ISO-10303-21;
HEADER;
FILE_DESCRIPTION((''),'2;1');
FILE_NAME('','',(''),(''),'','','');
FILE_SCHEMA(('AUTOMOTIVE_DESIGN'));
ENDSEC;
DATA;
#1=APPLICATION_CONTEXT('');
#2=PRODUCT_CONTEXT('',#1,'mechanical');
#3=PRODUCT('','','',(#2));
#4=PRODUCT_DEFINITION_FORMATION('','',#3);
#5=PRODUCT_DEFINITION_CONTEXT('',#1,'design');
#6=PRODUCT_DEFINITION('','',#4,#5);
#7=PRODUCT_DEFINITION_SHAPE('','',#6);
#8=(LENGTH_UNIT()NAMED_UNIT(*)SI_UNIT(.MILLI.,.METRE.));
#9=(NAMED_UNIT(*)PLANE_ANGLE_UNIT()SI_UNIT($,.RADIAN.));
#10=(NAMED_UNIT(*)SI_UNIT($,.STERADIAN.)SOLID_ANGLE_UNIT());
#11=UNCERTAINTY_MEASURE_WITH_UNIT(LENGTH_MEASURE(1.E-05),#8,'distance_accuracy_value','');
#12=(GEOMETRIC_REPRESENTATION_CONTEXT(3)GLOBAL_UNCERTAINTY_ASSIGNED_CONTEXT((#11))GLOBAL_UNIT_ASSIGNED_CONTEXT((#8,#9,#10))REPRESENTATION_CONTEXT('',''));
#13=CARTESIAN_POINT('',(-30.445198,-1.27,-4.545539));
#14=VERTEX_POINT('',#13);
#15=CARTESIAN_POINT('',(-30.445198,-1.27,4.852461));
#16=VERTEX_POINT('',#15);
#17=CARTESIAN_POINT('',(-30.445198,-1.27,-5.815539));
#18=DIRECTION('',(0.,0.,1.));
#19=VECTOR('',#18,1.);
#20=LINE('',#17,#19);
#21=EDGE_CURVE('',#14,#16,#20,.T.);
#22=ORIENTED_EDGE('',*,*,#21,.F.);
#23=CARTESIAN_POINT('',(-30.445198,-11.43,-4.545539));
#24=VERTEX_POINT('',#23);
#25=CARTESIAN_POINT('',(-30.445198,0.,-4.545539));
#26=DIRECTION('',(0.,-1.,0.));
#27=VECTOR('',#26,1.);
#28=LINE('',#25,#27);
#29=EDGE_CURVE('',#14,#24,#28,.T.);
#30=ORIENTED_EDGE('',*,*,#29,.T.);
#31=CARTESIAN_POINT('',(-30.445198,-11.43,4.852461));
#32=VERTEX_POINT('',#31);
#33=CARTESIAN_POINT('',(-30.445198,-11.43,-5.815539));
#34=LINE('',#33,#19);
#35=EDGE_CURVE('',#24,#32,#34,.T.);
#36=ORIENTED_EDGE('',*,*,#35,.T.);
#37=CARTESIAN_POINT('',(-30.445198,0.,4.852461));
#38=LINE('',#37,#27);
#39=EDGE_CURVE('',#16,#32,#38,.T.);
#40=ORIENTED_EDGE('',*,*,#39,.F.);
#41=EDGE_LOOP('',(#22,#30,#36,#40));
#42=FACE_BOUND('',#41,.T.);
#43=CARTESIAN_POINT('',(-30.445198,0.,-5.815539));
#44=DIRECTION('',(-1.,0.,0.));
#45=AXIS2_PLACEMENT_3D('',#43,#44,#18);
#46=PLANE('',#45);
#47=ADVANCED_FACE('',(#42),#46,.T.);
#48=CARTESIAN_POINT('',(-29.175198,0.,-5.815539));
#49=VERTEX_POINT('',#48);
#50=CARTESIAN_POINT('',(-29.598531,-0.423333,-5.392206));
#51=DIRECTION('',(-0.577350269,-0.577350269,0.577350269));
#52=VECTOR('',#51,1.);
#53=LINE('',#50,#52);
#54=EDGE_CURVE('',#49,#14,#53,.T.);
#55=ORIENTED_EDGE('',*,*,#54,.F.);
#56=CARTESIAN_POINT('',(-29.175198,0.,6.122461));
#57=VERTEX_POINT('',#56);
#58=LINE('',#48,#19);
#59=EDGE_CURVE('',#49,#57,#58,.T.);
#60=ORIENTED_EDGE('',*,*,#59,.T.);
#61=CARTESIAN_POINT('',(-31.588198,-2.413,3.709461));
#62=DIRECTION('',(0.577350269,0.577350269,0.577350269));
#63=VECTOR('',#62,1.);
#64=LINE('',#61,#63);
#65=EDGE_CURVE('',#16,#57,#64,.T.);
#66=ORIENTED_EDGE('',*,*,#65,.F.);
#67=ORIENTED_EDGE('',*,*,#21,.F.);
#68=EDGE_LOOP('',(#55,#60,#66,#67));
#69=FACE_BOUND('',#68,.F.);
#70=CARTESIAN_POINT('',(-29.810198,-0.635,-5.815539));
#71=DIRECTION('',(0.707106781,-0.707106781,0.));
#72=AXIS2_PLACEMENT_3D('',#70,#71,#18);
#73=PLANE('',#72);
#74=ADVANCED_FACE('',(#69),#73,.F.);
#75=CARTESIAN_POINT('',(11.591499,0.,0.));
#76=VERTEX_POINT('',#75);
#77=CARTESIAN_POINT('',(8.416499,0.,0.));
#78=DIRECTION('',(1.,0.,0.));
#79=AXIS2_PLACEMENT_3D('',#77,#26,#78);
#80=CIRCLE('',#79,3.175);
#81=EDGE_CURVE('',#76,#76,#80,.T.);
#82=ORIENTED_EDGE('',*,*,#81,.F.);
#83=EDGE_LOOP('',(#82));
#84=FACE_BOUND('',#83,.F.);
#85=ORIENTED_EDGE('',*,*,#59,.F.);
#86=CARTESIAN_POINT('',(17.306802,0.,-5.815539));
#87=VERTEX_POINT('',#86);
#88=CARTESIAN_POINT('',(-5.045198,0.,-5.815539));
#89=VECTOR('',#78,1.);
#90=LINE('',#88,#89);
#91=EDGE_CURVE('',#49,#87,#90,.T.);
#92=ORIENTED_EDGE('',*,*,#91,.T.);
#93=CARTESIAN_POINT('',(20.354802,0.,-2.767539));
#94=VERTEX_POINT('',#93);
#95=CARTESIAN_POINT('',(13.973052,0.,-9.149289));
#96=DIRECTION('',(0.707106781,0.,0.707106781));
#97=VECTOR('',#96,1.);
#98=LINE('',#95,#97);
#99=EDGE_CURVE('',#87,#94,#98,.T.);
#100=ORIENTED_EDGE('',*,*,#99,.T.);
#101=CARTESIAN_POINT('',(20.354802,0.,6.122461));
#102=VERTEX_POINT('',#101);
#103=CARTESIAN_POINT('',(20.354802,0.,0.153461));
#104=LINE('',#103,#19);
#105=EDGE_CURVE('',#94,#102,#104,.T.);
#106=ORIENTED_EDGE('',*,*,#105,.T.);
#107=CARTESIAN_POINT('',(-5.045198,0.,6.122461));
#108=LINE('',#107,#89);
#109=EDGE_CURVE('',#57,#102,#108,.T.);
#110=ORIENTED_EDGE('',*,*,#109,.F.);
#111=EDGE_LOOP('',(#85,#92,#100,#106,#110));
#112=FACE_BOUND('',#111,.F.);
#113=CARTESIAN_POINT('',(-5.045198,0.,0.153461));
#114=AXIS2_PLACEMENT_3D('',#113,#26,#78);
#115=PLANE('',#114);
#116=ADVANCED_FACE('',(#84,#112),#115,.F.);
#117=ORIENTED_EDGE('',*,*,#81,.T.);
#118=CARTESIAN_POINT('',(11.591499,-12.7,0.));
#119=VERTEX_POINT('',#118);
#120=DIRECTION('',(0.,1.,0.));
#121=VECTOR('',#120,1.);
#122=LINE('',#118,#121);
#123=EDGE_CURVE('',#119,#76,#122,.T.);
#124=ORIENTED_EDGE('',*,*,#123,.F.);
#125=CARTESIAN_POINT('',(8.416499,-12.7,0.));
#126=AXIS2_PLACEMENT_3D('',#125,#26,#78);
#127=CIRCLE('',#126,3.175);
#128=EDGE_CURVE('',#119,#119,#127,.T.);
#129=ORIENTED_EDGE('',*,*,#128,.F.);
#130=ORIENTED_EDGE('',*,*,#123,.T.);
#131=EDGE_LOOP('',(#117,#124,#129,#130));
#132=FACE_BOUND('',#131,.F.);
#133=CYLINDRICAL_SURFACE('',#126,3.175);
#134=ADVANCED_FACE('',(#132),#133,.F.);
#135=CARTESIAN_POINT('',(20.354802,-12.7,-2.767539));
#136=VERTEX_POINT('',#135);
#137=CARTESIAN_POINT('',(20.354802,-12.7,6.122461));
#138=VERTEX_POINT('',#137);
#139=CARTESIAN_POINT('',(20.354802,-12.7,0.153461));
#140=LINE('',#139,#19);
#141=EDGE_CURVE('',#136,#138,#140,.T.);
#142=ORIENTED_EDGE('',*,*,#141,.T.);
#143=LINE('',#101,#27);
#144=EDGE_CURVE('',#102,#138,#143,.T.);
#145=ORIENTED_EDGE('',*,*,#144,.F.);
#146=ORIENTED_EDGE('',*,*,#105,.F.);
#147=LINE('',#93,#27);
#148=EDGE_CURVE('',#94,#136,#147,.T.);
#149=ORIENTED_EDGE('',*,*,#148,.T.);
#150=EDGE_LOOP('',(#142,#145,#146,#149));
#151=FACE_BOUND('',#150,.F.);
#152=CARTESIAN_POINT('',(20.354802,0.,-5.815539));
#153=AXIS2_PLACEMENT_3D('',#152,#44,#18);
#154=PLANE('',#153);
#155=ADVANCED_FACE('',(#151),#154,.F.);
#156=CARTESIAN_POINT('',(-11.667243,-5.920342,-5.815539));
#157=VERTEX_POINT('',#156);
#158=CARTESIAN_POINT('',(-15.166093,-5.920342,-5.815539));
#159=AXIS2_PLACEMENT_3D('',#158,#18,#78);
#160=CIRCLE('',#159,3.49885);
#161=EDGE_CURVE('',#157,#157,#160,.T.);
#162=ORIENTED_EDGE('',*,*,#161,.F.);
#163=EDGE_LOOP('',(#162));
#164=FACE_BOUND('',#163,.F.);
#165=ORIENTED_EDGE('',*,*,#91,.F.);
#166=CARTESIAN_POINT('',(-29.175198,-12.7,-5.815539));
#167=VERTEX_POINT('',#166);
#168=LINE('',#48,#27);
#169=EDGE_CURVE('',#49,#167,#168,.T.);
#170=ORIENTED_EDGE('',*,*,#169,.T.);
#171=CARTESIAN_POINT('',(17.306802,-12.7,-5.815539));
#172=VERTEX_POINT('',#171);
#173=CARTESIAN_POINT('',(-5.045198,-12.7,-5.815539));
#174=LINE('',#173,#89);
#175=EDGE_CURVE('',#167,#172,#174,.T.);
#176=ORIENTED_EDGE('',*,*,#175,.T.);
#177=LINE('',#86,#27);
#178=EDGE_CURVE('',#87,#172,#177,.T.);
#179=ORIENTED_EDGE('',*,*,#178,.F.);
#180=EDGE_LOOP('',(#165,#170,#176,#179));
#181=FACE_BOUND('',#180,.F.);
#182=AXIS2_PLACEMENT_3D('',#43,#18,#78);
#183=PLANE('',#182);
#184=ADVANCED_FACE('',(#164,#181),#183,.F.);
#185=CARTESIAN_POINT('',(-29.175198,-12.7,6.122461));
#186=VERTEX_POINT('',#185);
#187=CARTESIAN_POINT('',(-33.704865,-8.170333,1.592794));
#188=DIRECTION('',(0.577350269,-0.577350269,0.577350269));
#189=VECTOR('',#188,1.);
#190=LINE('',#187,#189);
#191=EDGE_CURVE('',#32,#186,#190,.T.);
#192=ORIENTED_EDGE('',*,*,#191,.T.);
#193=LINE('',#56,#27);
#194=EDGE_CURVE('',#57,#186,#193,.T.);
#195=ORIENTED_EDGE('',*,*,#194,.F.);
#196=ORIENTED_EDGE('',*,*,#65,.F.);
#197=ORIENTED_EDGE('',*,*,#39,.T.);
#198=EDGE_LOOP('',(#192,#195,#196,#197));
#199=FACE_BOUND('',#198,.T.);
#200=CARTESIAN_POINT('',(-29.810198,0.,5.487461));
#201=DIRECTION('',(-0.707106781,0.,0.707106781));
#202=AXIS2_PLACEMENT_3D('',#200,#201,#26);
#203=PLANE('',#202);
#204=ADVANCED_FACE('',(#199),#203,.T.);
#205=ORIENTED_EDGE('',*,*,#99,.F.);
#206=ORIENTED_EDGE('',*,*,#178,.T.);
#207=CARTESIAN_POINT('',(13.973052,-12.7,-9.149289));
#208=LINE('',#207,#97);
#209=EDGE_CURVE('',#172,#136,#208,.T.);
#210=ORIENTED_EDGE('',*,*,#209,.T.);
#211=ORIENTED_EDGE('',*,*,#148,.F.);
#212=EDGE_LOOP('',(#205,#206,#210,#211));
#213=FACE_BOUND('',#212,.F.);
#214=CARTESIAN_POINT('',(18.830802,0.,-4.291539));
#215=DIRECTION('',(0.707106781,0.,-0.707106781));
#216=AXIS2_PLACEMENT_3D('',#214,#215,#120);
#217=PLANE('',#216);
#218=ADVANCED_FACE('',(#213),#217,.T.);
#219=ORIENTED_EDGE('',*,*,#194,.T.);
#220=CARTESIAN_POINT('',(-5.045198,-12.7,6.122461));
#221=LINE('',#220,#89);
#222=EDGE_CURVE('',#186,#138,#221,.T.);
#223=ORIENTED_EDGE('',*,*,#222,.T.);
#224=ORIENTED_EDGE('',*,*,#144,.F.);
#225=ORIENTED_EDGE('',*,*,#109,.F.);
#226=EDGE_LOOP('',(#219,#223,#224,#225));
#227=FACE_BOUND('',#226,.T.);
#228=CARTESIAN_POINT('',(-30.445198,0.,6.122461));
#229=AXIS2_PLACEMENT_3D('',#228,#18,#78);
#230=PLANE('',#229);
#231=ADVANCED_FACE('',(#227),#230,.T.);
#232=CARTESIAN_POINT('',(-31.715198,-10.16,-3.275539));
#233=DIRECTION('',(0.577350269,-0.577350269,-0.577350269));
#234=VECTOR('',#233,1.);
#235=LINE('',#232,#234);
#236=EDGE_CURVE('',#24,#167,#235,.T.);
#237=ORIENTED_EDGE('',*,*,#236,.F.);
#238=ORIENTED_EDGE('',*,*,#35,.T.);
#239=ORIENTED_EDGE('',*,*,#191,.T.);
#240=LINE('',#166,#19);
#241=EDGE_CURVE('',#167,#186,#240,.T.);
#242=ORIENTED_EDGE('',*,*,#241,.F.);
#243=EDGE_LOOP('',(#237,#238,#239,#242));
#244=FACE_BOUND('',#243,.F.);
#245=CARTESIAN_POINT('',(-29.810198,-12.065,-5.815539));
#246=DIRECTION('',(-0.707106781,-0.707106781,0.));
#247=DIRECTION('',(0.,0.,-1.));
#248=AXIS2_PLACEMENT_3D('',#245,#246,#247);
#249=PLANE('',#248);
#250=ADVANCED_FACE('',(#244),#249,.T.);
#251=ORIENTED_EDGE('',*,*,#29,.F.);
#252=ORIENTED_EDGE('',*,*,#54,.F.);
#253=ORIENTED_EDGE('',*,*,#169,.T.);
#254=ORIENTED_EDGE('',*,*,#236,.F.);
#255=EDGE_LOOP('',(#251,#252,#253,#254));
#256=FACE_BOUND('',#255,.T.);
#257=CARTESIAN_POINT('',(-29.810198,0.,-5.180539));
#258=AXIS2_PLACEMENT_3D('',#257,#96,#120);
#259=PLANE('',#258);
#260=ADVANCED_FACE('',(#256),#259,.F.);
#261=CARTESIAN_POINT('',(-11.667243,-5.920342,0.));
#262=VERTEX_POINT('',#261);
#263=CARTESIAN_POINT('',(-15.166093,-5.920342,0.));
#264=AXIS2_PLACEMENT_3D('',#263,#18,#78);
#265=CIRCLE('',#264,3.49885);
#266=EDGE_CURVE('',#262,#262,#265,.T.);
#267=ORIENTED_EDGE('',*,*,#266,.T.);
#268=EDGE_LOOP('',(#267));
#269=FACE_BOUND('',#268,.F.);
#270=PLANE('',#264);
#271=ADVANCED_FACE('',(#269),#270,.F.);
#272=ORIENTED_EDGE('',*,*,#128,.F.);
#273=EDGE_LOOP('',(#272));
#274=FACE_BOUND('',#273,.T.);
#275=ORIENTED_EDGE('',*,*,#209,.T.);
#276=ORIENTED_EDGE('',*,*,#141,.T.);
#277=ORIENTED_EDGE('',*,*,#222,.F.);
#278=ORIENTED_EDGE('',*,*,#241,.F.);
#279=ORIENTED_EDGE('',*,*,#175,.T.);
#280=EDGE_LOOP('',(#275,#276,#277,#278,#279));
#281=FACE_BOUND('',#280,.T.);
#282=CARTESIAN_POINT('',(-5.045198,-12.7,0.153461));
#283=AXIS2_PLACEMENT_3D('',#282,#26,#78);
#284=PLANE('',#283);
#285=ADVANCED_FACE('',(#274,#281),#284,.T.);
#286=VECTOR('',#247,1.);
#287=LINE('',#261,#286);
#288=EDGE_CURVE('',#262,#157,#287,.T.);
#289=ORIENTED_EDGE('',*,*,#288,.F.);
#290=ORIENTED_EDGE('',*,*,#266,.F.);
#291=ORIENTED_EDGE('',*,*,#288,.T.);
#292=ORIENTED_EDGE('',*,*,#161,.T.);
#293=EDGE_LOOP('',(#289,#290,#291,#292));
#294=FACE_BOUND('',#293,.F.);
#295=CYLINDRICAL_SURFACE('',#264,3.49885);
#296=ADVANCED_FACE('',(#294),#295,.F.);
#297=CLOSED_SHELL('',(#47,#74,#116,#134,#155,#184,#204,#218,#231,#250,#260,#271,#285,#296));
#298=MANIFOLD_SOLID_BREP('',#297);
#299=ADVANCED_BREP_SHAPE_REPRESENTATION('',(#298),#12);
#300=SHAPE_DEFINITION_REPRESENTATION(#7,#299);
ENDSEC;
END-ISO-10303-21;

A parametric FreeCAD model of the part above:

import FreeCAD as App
import Part
import Sketcher
Q = App.Units.Quantity


def edges_at(feature, points):
    """Names of the edges that pass closest to the given points."""
    edges = feature.Shape.Edges
    near = lambda p: min(range(len(edges)), key=lambda i: edges[i].distToShape(Part.Vertex(*p))[0])
    return sorted({f"Edge{near(p) + 1}" for p in points})

doc = App.newDocument("Part")
body = doc.addObject("PartDesign::Body", "Body")

# Sketch on XZ plane
sketch1 = body.newObject("Sketcher::SketchObject", "Sketch")
sketch1.AttachmentSupport = (doc.getObject("XZ_Plane"), [""])
sketch1.MapMode = "FlatFace"
sketch1.addGeometry([
    Part.LineSegment(App.Vector(-30, 6, 0), App.Vector(-30, -6, 0)),
    Part.LineSegment(App.Vector(-30, -6, 0), App.Vector(20, -6, 0)),
    Part.LineSegment(App.Vector(20, -6, 0), App.Vector(20, 6, 0)),
    Part.LineSegment(App.Vector(20, 6, 0), App.Vector(-30, 6, 0)),
], False)
sketch1.addConstraint([
    Sketcher.Constraint("Coincident", 0, 2, 1, 1),
    Sketcher.Constraint("Coincident", 1, 2, 2, 1),
    Sketcher.Constraint("Coincident", 2, 2, 3, 1),
    Sketcher.Constraint("Coincident", 3, 2, 0, 1),
    Sketcher.Constraint("Vertical", 0),
    Sketcher.Constraint("Horizontal", 1),
    Sketcher.Constraint("Vertical", 2),
    Sketcher.Constraint("Horizontal", 3),
    Sketcher.Constraint("DistanceX", 1, 1, 1, 2, Q("2 in")),
    Sketcher.Constraint("DistanceY", 0, 2, 0, 1, Q("0.47 in")),
    Sketcher.Constraint("DistanceX", 0, 2, -1, 1, 30.445198),
    Sketcher.Constraint("DistanceY", 0, 2, -1, 1, 5.815539),
])
pad1 = body.newObject("PartDesign::Pad", "Pad")
pad1.Profile = sketch1
pad1.Length = Q("0.5 in")

# Sketch on XZ plane
sketch2 = body.newObject("Sketcher::SketchObject", "Sketch001")
sketch2.AttachmentSupport = (doc.getObject("XZ_Plane"), [""])
sketch2.MapMode = "FlatFace"
sketch2.AttachmentOffset = App.Placement(App.Vector(0, 0, 0.5 * 25.4), App.Rotation())
sketch2.addGeometry(Part.Circle(App.Vector(8.4, 0, 0), App.Vector(0, 0, 1), 3.2), False)
sketch2.addConstraint([
    Sketcher.Constraint("PointOnObject", 0, 3, -1),
    Sketcher.Constraint("Diameter", 0, Q("0.25 in")),
    Sketcher.Constraint("DistanceX", -1, 1, 0, 3, 8.416499),
])
pocket1 = body.newObject("PartDesign::Pocket", "Pocket")
pocket1.Profile = sketch2
pocket1.Type = "ThroughAll"

# Sketch on XY plane
sketch3 = body.newObject("Sketcher::SketchObject", "Sketch002")
sketch3.AttachmentSupport = (doc.getObject("XY_Plane"), [""])
sketch3.MapMode = "FlatFace"
sketch3.addGeometry(Part.Circle(App.Vector(-15.2, -5.9, 0), App.Vector(0, 0, 1), 3.5), False)
sketch3.addConstraint([
    Sketcher.Constraint("Diameter", 0, Q("0.2755 in")),
    Sketcher.Constraint("DistanceY", 0, 3, -1, 1, 5.920342),
    Sketcher.Constraint("DistanceX", 0, 3, -1, 1, 15.166093),
])
pocket2 = body.newObject("PartDesign::Pocket", "Pocket001")
pocket2.Profile = sketch3
pocket2.Length = Q("0.25 in")
doc.recompute()

chamfer = body.newObject("PartDesign::Chamfer", "Chamfer")
chamfer.Base = (pocket2, edges_at(pocket2, [(20.355, -6.35, -5.816)]))
chamfer.Size = Q("0.12 in")
doc.recompute()

chamfer2 = body.newObject("PartDesign::Chamfer", "Chamfer001")
chamfer2.Base = (chamfer, edges_at(chamfer, [
    (-30.445, -6.35, 6.122),
    (-30.445, -12.7, 0.153),
    (-30.445, -6.35, -5.816),
    (-30.445, 0, 0.153),
]))
chamfer2.Size = Q("0.05 in")

doc.recompute()
